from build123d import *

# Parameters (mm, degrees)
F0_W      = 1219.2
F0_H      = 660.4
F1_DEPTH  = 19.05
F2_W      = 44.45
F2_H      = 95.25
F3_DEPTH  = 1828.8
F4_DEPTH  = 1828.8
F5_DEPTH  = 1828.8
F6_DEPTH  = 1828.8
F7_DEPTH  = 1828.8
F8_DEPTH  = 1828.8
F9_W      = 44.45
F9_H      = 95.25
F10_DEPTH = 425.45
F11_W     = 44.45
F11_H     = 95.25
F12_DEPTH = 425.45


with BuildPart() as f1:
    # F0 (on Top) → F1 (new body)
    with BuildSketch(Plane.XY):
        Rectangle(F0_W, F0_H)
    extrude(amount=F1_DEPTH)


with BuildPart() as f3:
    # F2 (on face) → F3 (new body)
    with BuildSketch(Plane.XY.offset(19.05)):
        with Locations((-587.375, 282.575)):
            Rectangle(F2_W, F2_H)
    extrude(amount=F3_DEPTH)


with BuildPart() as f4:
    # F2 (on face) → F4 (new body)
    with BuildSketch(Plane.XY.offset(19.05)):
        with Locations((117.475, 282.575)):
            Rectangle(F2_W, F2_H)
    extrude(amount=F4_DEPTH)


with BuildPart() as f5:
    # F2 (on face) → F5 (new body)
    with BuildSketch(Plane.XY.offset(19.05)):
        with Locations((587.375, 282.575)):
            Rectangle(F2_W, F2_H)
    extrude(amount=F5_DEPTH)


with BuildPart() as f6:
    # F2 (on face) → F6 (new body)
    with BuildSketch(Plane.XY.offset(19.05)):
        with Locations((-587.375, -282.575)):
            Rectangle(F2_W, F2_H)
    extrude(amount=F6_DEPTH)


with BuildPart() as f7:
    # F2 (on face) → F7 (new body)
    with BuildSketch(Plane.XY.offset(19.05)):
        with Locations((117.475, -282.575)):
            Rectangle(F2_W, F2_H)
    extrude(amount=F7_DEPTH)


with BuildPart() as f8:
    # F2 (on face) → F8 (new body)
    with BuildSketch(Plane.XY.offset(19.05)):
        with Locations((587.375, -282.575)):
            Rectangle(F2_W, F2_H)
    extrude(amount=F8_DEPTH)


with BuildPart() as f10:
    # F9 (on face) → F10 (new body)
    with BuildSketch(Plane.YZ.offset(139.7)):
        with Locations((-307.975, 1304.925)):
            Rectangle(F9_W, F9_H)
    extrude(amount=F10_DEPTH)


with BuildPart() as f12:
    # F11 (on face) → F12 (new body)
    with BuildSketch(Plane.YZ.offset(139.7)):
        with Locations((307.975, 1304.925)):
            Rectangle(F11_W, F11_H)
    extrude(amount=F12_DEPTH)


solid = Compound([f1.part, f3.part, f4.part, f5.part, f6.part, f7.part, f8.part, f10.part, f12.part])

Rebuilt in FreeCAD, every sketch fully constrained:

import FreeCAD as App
import Part
import Sketcher
from FreeCAD import Vector
Q = App.Units.Quantity

doc = App.newDocument("Part")
body = doc.addObject("PartDesign::Body", "Body")

sketch1 = doc.addObject("Sketcher::SketchObject", "Sketch")
body.addObject(sketch1)
sketch1.AttachmentSupport = (doc.XY_Plane, [""])
sketch1.MapMode = "FlatFace"
sketch1.addGeometry(Part.LineSegment(Vector(-609.6, 330.2, 0), Vector(-609.6, -330.2, 0)), False)
sketch1.addGeometry(Part.LineSegment(Vector(-609.6, -330.2, 0), Vector(609.6, -330.2, 0)), False)
sketch1.addGeometry(Part.LineSegment(Vector(609.6, -330.2, 0), Vector(609.6, 330.2, 0)), False)
sketch1.addGeometry(Part.LineSegment(Vector(609.6, 330.2, 0), Vector(-609.6, 330.2, 0)), False)
sketch1.addConstraint(Sketcher.Constraint("Coincident", 0, 2, 1, 1))
sketch1.addConstraint(Sketcher.Constraint("Coincident", 1, 2, 2, 1))
sketch1.addConstraint(Sketcher.Constraint("Coincident", 2, 2, 3, 1))
sketch1.addConstraint(Sketcher.Constraint("Coincident", 3, 2, 0, 1))
sketch1.addConstraint(Sketcher.Constraint("Vertical", 0))
sketch1.addConstraint(Sketcher.Constraint("Horizontal", 1))
sketch1.addConstraint(Sketcher.Constraint("Vertical", 2))
sketch1.addConstraint(Sketcher.Constraint("Horizontal", 3))
sketch1.addConstraint(Sketcher.Constraint("Symmetric", 0, 2, 2, 2, -1, 1))
sketch1.addConstraint(Sketcher.Constraint("DistanceX", 1, 1, 1, 2, Q("48 in")))
sketch1.addConstraint(Sketcher.Constraint("DistanceY", 0, 2, 0, 1, Q("26 in")))
pad1 = doc.addObject("PartDesign::Pad", "Pad")
body.addObject(pad1)
pad1.Profile = sketch1
pad1.Length = Q("0.75 in")
body2 = doc.addObject("PartDesign::Body", "Body001")

sketch2 = doc.addObject("Sketcher::SketchObject", "Sketch001")
body2.addObject(sketch2)
sketch2.AttachmentSupport = (doc.getObject("XY_Plane001"), [""])
sketch2.MapMode = "FlatFace"
sketch2.AttachmentOffset = App.Placement(Vector(0, 0, 0.75 * 25.4), App.Rotation())
sketch2.addGeometry(Part.LineSegment(Vector(-609.6, 330.2, 0), Vector(-609.6, 234.95, 0)), False)
sketch2.addGeometry(Part.LineSegment(Vector(-609.6, 234.95, 0), Vector(-565.15, 234.95, 0)), False)
sketch2.addGeometry(Part.LineSegment(Vector(-565.15, 234.95, 0), Vector(-565.15, 330.2, 0)), False)
sketch2.addGeometry(Part.LineSegment(Vector(-565.15, 330.2, 0), Vector(-609.6, 330.2, 0)), False)
sketch2.addConstraint(Sketcher.Constraint("Coincident", 0, 2, 1, 1))
sketch2.addConstraint(Sketcher.Constraint("Coincident", 1, 2, 2, 1))
sketch2.addConstraint(Sketcher.Constraint("Coincident", 2, 2, 3, 1))
sketch2.addConstraint(Sketcher.Constraint("Coincident", 3, 2, 0, 1))
sketch2.addConstraint(Sketcher.Constraint("Vertical", 0))
sketch2.addConstraint(Sketcher.Constraint("Horizontal", 1))
sketch2.addConstraint(Sketcher.Constraint("Vertical", 2))
sketch2.addConstraint(Sketcher.Constraint("Horizontal", 3))
sketch2.addConstraint(Sketcher.Constraint("DistanceX", 0, 2, -1, 1, Q("24 in")))
sketch2.addConstraint(Sketcher.Constraint("DistanceY", -1, 1, 2, 2, Q("13 in")))
sketch2.addConstraint(Sketcher.Constraint("DistanceX", 1, 1, 1, 2, Q("1.75 in")))
sketch2.addConstraint(Sketcher.Constraint("DistanceY", 0, 2, 0, 1, Q("3.75 in")))
pad2 = doc.addObject("PartDesign::Pad", "Pad001")
body2.addObject(pad2)
pad2.Profile = sketch2
pad2.Length = Q("72 in")
body3 = doc.addObject("PartDesign::Body", "Body002")

sketch3 = doc.addObject("Sketcher::SketchObject", "Sketch002")
body3.addObject(sketch3)
sketch3.AttachmentSupport = (doc.getObject("XY_Plane002"), [""])
sketch3.MapMode = "FlatFace"
sketch3.AttachmentOffset = App.Placement(Vector(0, 0, 0.75 * 25.4), App.Rotation())
sketch3.addGeometry(Part.LineSegment(Vector(95.25, 330.2, 0), Vector(95.25, 234.95, 0)), False)
sketch3.addGeometry(Part.LineSegment(Vector(95.25, 234.95, 0), Vector(139.7, 234.95, 0)), False)
sketch3.addGeometry(Part.LineSegment(Vector(139.7, 234.95, 0), Vector(139.7, 330.2, 0)), False)
sketch3.addGeometry(Part.LineSegment(Vector(139.7, 330.2, 0), Vector(95.25, 330.2, 0)), False)
sketch3.addConstraint(Sketcher.Constraint("Coincident", 0, 2, 1, 1))
sketch3.addConstraint(Sketcher.Constraint("Coincident", 1, 2, 2, 1))
sketch3.addConstraint(Sketcher.Constraint("Coincident", 2, 2, 3, 1))
sketch3.addConstraint(Sketcher.Constraint("Coincident", 3, 2, 0, 1))
sketch3.addConstraint(Sketcher.Constraint("Vertical", 0))
sketch3.addConstraint(Sketcher.Constraint("Horizontal", 1))
sketch3.addConstraint(Sketcher.Constraint("Vertical", 2))
sketch3.addConstraint(Sketcher.Constraint("Horizontal", 3))
sketch3.addConstraint(Sketcher.Constraint("DistanceY", -1, 1, 2, 2, Q("13 in")))
sketch3.addConstraint(Sketcher.Constraint("DistanceX", 1, 1, 1, 2, Q("1.75 in")))
sketch3.addConstraint(Sketcher.Constraint("DistanceY", 0, 2, 0, 1, Q("3.75 in")))
sketch3.addConstraint(Sketcher.Constraint("DistanceX", -1, 1, 1, 2, Q("5.5 in")))
pad3 = doc.addObject("PartDesign::Pad", "Pad002")
body3.addObject(pad3)
pad3.Profile = sketch3
pad3.Length = Q("72 in")
body4 = doc.addObject("PartDesign::Body", "Body003")

sketch4 = doc.addObject("Sketcher::SketchObject", "Sketch003")
body4.addObject(sketch4)
sketch4.AttachmentSupport = (doc.getObject("XY_Plane003"), [""])
sketch4.MapMode = "FlatFace"
sketch4.AttachmentOffset = App.Placement(Vector(0, 0, 0.75 * 25.4), App.Rotation())
sketch4.addGeometry(Part.LineSegment(Vector(565.15, 330.2, 0), Vector(565.15, 234.95, 0)), False)
sketch4.addGeometry(Part.LineSegment(Vector(565.15, 234.95, 0), Vector(609.6, 234.95, 0)), False)
sketch4.addGeometry(Part.LineSegment(Vector(609.6, 234.95, 0), Vector(609.6, 330.2, 0)), False)
sketch4.addGeometry(Part.LineSegment(Vector(609.6, 330.2, 0), Vector(565.15, 330.2, 0)), False)
sketch4.addConstraint(Sketcher.Constraint("Coincident", 0, 2, 1, 1))
sketch4.addConstraint(Sketcher.Constraint("Coincident", 1, 2, 2, 1))
sketch4.addConstraint(Sketcher.Constraint("Coincident", 2, 2, 3, 1))
sketch4.addConstraint(Sketcher.Constraint("Coincident", 3, 2, 0, 1))
sketch4.addConstraint(Sketcher.Constraint("Vertical", 0))
sketch4.addConstraint(Sketcher.Constraint("Horizontal", 1))
sketch4.addConstraint(Sketcher.Constraint("Vertical", 2))
sketch4.addConstraint(Sketcher.Constraint("Horizontal", 3))
sketch4.addConstraint(Sketcher.Constraint("DistanceX", -1, 1, 1, 2, Q("24 in")))
sketch4.addConstraint(Sketcher.Constraint("DistanceY", -1, 1, 2, 2, Q("13 in")))
sketch4.addConstraint(Sketcher.Constraint("DistanceX", 1, 1, 1, 2, Q("1.75 in")))
sketch4.addConstraint(Sketcher.Constraint("DistanceY", 0, 2, 0, 1, Q("3.75 in")))
pad4 = doc.addObject("PartDesign::Pad", "Pad003")
body4.addObject(pad4)
pad4.Profile = sketch4
pad4.Length = Q("72 in")
body5 = doc.addObject("PartDesign::Body", "Body004")

sketch5 = doc.addObject("Sketcher::SketchObject", "Sketch004")
body5.addObject(sketch5)
sketch5.AttachmentSupport = (doc.getObject("XY_Plane004"), [""])
sketch5.MapMode = "FlatFace"
sketch5.AttachmentOffset = App.Placement(Vector(0, 0, 0.75 * 25.4), App.Rotation())
sketch5.addGeometry(Part.LineSegment(Vector(-609.6, -234.95, 0), Vector(-609.6, -330.2, 0)), False)
sketch5.addGeometry(Part.LineSegment(Vector(-609.6, -330.2, 0), Vector(-565.15, -330.2, 0)), False)
sketch5.addGeometry(Part.LineSegment(Vector(-565.15, -330.2, 0), Vector(-565.15, -234.95, 0)), False)
sketch5.addGeometry(Part.LineSegment(Vector(-565.15, -234.95, 0), Vector(-609.6, -234.95, 0)), False)
sketch5.addConstraint(Sketcher.Constraint("Coincident", 0, 2, 1, 1))
sketch5.addConstraint(Sketcher.Constraint("Coincident", 1, 2, 2, 1))
sketch5.addConstraint(Sketcher.Constraint("Coincident", 2, 2, 3, 1))
sketch5.addConstraint(Sketcher.Constraint("Coincident", 3, 2, 0, 1))
sketch5.addConstraint(Sketcher.Constraint("Vertical", 0))
sketch5.addConstraint(Sketcher.Constraint("Horizontal", 1))
sketch5.addConstraint(Sketcher.Constraint("Vertical", 2))
sketch5.addConstraint(Sketcher.Constraint("Horizontal", 3))
sketch5.addConstraint(Sketcher.Constraint("DistanceX", 0, 2, -1, 1, Q("24 in")))
sketch5.addConstraint(Sketcher.Constraint("DistanceY", 0, 2, -1, 1, Q("13 in")))
sketch5.addConstraint(Sketcher.Constraint("DistanceX", 1, 1, 1, 2, Q("1.75 in")))
sketch5.addConstraint(Sketcher.Constraint("DistanceY", 0, 2, 0, 1, Q("3.75 in")))
pad5 = doc.addObject("PartDesign::Pad", "Pad004")
body5.addObject(pad5)
pad5.Profile = sketch5
pad5.Length = Q("72 in")
body6 = doc.addObject("PartDesign::Body", "Body005")

sketch6 = doc.addObject("Sketcher::SketchObject", "Sketch005")
body6.addObject(sketch6)
sketch6.AttachmentSupport = (doc.getObject("XY_Plane005"), [""])
sketch6.MapMode = "FlatFace"
sketch6.AttachmentOffset = App.Placement(Vector(0, 0, 0.75 * 25.4), App.Rotation())
sketch6.addGeometry(Part.LineSegment(Vector(95.25, -234.95, 0), Vector(95.25, -330.2, 0)), False)
sketch6.addGeometry(Part.LineSegment(Vector(95.25, -330.2, 0), Vector(139.7, -330.2, 0)), False)
sketch6.addGeometry(Part.LineSegment(Vector(139.7, -330.2, 0), Vector(139.7, -234.95, 0)), False)
sketch6.addGeometry(Part.LineSegment(Vector(139.7, -234.95, 0), Vector(95.25, -234.95, 0)), False)
sketch6.addConstraint(Sketcher.Constraint("Coincident", 0, 2, 1, 1))
sketch6.addConstraint(Sketcher.Constraint("Coincident", 1, 2, 2, 1))
sketch6.addConstraint(Sketcher.Constraint("Coincident", 2, 2, 3, 1))
sketch6.addConstraint(Sketcher.Constraint("Coincident", 3, 2, 0, 1))
sketch6.addConstraint(Sketcher.Constraint("Vertical", 0))
sketch6.addConstraint(Sketcher.Constraint("Horizontal", 1))
sketch6.addConstraint(Sketcher.Constraint("Vertical", 2))
sketch6.addConstraint(Sketcher.Constraint("Horizontal", 3))
sketch6.addConstraint(Sketcher.Constraint("DistanceY", 0, 2, -1, 1, Q("13 in")))
sketch6.addConstraint(Sketcher.Constraint("DistanceX", 1, 1, 1, 2, Q("1.75 in")))
sketch6.addConstraint(Sketcher.Constraint("DistanceY", 0, 2, 0, 1, Q("3.75 in")))
sketch6.addConstraint(Sketcher.Constraint("DistanceX", -1, 1, 1, 2, Q("5.5 in")))
pad6 = doc.addObject("PartDesign::Pad", "Pad005")
body6.addObject(pad6)
pad6.Profile = sketch6
pad6.Length = Q("72 in")
body7 = doc.addObject("PartDesign::Body", "Body006")

sketch7 = doc.addObject("Sketcher::SketchObject", "Sketch006")
body7.addObject(sketch7)
sketch7.AttachmentSupport = (doc.getObject("XY_Plane006"), [""])
sketch7.MapMode = "FlatFace"
sketch7.AttachmentOffset = App.Placement(Vector(0, 0, 0.75 * 25.4), App.Rotation())
sketch7.addGeometry(Part.LineSegment(Vector(565.15, -234.95, 0), Vector(565.15, -330.2, 0)), False)
sketch7.addGeometry(Part.LineSegment(Vector(565.15, -330.2, 0), Vector(609.6, -330.2, 0)), False)
sketch7.addGeometry(Part.LineSegment(Vector(609.6, -330.2, 0), Vector(609.6, -234.95, 0)), False)
sketch7.addGeometry(Part.LineSegment(Vector(609.6, -234.95, 0), Vector(565.15, -234.95, 0)), False)
sketch7.addConstraint(Sketcher.Constraint("Coincident", 0, 2, 1, 1))
sketch7.addConstraint(Sketcher.Constraint("Coincident", 1, 2, 2, 1))
sketch7.addConstraint(Sketcher.Constraint("Coincident", 2, 2, 3, 1))
sketch7.addConstraint(Sketcher.Constraint("Coincident", 3, 2, 0, 1))
sketch7.addConstraint(Sketcher.Constraint("Vertical", 0))
sketch7.addConstraint(Sketcher.Constraint("Horizontal", 1))
sketch7.addConstraint(Sketcher.Constraint("Vertical", 2))
sketch7.addConstraint(Sketcher.Constraint("Horizontal", 3))
sketch7.addConstraint(Sketcher.Constraint("DistanceY", 0, 2, -1, 1, Q("13 in")))
sketch7.addConstraint(Sketcher.Constraint("DistanceX", -1, 1, 1, 2, Q("24 in")))
sketch7.addConstraint(Sketcher.Constraint("DistanceX", 1, 1, 1, 2, Q("1.75 in")))
sketch7.addConstraint(Sketcher.Constraint("DistanceY", 0, 2, 0, 1, Q("3.75 in")))
pad7 = doc.addObject("PartDesign::Pad", "Pad006")
body7.addObject(pad7)
pad7.Profile = sketch7
pad7.Length = Q("72 in")
body8 = doc.addObject("PartDesign::Body", "Body007")

sketch8 = doc.addObject("Sketcher::SketchObject", "Sketch007")
body8.addObject(sketch8)
sketch8.AttachmentSupport = (doc.getObject("YZ_Plane007"), [""])
sketch8.MapMode = "FlatFace"
sketch8.AttachmentOffset = App.Placement(Vector(0, 0, 5.5 * 25.4), App.Rotation())
sketch8.addGeometry(Part.LineSegment(Vector(-330.2, 1352.55, 0), Vector(-330.2, 1257.3, 0)), False)
sketch8.addGeometry(Part.LineSegment(Vector(-330.2, 1257.3, 0), Vector(-285.75, 1257.3, 0)), False)
sketch8.addGeometry(Part.LineSegment(Vector(-285.75, 1257.3, 0), Vector(-285.75, 1352.55, 0)), False)
sketch8.addGeometry(Part.LineSegment(Vector(-285.75, 1352.55, 0), Vector(-330.2, 1352.55, 0)), False)
sketch8.addConstraint(Sketcher.Constraint("Coincident", 0, 2, 1, 1))
sketch8.addConstraint(Sketcher.Constraint("Coincident", 1, 2, 2, 1))
sketch8.addConstraint(Sketcher.Constraint("Coincident", 2, 2, 3, 1))
sketch8.addConstraint(Sketcher.Constraint("Coincident", 3, 2, 0, 1))
sketch8.addConstraint(Sketcher.Constraint("Vertical", 0))
sketch8.addConstraint(Sketcher.Constraint("Horizontal", 1))
sketch8.addConstraint(Sketcher.Constraint("Vertical", 2))
sketch8.addConstraint(Sketcher.Constraint("Horizontal", 3))
sketch8.addConstraint(Sketcher.Constraint("DistanceX", 0, 2, -1, 1, Q("13 in")))
sketch8.addConstraint(Sketcher.Constraint("DistanceX", 1, 1, 1, 2, Q("1.75 in")))
sketch8.addConstraint(Sketcher.Constraint("DistanceY", 0, 2, 0, 1, Q("3.75 in")))
sketch8.addConstraint(Sketcher.Constraint("DistanceY", -1, 1, 0, 2, Q("49.5 in")))
pad8 = doc.addObject("PartDesign::Pad", "Pad007")
body8.addObject(pad8)
pad8.Profile = sketch8
pad8.Length = Q("16.75 in")
body9 = doc.addObject("PartDesign::Body", "Body008")

sketch9 = doc.addObject("Sketcher::SketchObject", "Sketch008")
body9.addObject(sketch9)
sketch9.AttachmentSupport = (doc.getObject("YZ_Plane008"), [""])
sketch9.MapMode = "FlatFace"
sketch9.AttachmentOffset = App.Placement(Vector(0, 0, 5.5 * 25.4), App.Rotation())
sketch9.addGeometry(Part.LineSegment(Vector(285.75, 1352.55, 0), Vector(285.75, 1257.3, 0)), False)
sketch9.addGeometry(Part.LineSegment(Vector(285.75, 1257.3, 0), Vector(330.2, 1257.3, 0)), False)
sketch9.addGeometry(Part.LineSegment(Vector(330.2, 1257.3, 0), Vector(330.2, 1352.55, 0)), False)
sketch9.addGeometry(Part.LineSegment(Vector(330.2, 1352.55, 0), Vector(285.75, 1352.55, 0)), False)
sketch9.addConstraint(Sketcher.Constraint("Coincident", 0, 2, 1, 1))
sketch9.addConstraint(Sketcher.Constraint("Coincident", 1, 2, 2, 1))
sketch9.addConstraint(Sketcher.Constraint("Coincident", 2, 2, 3, 1))
sketch9.addConstraint(Sketcher.Constraint("Coincident", 3, 2, 0, 1))
sketch9.addConstraint(Sketcher.Constraint("Vertical", 0))
sketch9.addConstraint(Sketcher.Constraint("Horizontal", 1))
sketch9.addConstraint(Sketcher.Constraint("Vertical", 2))
sketch9.addConstraint(Sketcher.Constraint("Horizontal", 3))
sketch9.addConstraint(Sketcher.Constraint("DistanceX", -1, 1, 1, 2, Q("13 in")))
sketch9.addConstraint(Sketcher.Constraint("DistanceX", 1, 1, 1, 2, Q("1.75 in")))
sketch9.addConstraint(Sketcher.Constraint("DistanceY", 0, 2, 0, 1, Q("3.75 in")))
sketch9.addConstraint(Sketcher.Constraint("DistanceY", -1, 1, 0, 2, Q("49.5 in")))
pad9 = doc.addObject("PartDesign::Pad", "Pad008")
body9.addObject(pad9)
pad9.Profile = sketch9
pad9.Length = Q("16.75 in")

doc.recompute()
